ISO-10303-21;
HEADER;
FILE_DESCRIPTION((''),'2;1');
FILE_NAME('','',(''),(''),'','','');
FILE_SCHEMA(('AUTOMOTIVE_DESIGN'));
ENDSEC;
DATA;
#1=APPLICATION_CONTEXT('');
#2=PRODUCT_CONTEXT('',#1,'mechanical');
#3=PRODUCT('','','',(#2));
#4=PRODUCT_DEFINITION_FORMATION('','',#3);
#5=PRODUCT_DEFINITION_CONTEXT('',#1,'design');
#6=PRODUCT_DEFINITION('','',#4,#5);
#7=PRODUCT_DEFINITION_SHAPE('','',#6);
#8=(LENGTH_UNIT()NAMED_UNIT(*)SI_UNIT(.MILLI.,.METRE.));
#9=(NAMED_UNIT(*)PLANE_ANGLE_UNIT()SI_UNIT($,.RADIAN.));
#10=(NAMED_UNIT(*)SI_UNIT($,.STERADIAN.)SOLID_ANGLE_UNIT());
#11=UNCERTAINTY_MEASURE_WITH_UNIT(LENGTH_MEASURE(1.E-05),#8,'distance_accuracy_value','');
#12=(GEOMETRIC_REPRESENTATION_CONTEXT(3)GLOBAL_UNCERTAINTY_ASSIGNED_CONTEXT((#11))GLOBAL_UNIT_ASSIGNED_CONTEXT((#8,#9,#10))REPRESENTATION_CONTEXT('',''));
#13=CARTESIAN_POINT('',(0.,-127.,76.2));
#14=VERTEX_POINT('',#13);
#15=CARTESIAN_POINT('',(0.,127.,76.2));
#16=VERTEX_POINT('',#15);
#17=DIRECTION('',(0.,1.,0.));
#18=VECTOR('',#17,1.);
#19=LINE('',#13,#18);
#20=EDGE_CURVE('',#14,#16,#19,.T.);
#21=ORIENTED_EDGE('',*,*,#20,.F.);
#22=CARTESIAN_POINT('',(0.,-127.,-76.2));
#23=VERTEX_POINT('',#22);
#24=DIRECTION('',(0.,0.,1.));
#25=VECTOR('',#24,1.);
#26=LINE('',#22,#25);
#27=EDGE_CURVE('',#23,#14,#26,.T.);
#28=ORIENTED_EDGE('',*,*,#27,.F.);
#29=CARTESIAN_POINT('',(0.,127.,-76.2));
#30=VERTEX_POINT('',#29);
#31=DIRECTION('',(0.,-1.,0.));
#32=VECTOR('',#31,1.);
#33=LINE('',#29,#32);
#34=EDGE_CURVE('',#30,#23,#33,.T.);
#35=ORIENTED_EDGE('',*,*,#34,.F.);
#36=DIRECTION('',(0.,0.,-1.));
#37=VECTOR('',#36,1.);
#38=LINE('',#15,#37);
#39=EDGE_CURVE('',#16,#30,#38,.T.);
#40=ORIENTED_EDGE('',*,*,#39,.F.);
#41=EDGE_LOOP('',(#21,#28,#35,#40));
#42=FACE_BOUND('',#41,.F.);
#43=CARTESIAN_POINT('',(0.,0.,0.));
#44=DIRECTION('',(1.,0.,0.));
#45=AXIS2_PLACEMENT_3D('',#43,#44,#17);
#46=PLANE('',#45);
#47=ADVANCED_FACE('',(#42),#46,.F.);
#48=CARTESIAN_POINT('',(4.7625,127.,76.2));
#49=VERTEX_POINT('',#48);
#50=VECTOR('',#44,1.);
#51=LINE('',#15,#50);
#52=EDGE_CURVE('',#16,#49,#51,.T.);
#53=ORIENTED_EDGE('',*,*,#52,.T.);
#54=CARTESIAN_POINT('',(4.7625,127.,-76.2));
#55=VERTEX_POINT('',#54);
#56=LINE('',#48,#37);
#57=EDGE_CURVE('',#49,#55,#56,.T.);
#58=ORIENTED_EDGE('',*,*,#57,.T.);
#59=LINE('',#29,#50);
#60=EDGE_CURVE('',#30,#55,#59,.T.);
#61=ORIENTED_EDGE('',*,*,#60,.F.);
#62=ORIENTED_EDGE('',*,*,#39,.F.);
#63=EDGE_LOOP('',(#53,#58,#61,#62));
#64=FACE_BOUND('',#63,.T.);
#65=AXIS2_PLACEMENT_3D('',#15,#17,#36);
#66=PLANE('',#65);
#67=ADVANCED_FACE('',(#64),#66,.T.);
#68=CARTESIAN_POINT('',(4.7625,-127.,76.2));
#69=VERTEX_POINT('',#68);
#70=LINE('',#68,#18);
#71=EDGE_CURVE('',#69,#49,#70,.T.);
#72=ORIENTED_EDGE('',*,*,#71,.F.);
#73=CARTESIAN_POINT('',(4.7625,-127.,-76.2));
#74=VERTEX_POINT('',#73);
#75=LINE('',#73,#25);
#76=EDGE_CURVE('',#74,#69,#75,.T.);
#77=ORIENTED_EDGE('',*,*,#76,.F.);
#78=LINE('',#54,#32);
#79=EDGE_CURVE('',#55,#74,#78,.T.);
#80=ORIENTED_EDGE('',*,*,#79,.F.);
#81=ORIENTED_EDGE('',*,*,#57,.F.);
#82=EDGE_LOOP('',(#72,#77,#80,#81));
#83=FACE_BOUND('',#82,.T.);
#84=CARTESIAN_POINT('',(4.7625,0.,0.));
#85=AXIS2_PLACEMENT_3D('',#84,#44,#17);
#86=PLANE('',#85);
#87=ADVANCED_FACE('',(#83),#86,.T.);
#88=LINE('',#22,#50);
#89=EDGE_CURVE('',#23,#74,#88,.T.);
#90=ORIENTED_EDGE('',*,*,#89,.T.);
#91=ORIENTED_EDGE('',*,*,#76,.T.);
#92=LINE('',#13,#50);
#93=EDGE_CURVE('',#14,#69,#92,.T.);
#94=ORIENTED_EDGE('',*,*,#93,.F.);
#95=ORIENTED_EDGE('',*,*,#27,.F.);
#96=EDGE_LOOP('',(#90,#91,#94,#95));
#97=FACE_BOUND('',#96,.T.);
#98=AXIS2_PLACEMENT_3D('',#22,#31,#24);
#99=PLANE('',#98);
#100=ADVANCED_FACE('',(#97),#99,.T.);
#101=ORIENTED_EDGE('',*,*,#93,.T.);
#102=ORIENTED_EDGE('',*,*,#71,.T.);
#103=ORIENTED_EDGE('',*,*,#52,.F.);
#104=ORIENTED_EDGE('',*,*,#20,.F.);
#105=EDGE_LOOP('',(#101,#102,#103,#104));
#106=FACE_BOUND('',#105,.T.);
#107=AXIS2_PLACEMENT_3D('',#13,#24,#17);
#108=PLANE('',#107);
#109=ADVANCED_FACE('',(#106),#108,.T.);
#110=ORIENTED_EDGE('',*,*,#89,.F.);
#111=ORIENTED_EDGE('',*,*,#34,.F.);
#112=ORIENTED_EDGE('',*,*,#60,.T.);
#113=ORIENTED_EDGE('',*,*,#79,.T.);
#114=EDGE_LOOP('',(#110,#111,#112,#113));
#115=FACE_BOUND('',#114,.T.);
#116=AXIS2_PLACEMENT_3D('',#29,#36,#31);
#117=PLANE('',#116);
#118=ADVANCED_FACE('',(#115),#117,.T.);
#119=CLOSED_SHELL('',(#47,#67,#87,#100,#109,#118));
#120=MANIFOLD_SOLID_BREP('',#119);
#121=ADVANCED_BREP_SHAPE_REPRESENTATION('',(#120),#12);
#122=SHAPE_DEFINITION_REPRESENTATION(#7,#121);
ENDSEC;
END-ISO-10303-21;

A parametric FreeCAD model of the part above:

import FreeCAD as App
import Part
import Sketcher
from FreeCAD import Vector
Q = App.Units.Quantity


def add_polygon(sketch, points):
    """Adds a closed chain of lines whose ends are joined by coincident constraints."""
    first, n = sketch.GeometryCount, len(points)
    for a, b in zip(points, points[1:] + points[:1]):
        sketch.addGeometry(Part.LineSegment(App.Vector(*a, 0), App.Vector(*b, 0)), False)
    for i in range(n):
        sketch.addConstraint(Sketcher.Constraint("Coincident", first + i, 2, first + (i + 1) % n, 1))

doc = App.newDocument("Part")
body = doc.addObject("PartDesign::Body", "Body")

# Sketch on YZ plane
sketch1 = body.newObject("Sketcher::SketchObject", "Sketch")
sketch1.AttachmentSupport = (doc.getObject("YZ_Plane"), [""])
sketch1.MapMode = "FlatFace"
add_polygon(sketch1, [(127, 76), (-127, 76), (-127, -76), (127, -76)])  # lines 0-3
sketch1.addConstraint([
    Sketcher.Constraint("Horizontal", 0),
    Sketcher.Constraint("Vertical", 1),
    Sketcher.Constraint("Horizontal", 2),
    Sketcher.Constraint("Vertical", 3),
    Sketcher.Constraint("Symmetric", 0, 2, 2, 2, -1, 1),
    Sketcher.Constraint("DistanceX", 0, 2, 0, 1, Q("10 in")),
    Sketcher.Constraint("DistanceY", 1, 2, 1, 1, Q("6 in")),
])
pad1 = body.newObject("PartDesign::Pad", "Pad")
pad1.Profile = sketch1
pad1.Length = Q("0.1875 in")

doc.recompute()
